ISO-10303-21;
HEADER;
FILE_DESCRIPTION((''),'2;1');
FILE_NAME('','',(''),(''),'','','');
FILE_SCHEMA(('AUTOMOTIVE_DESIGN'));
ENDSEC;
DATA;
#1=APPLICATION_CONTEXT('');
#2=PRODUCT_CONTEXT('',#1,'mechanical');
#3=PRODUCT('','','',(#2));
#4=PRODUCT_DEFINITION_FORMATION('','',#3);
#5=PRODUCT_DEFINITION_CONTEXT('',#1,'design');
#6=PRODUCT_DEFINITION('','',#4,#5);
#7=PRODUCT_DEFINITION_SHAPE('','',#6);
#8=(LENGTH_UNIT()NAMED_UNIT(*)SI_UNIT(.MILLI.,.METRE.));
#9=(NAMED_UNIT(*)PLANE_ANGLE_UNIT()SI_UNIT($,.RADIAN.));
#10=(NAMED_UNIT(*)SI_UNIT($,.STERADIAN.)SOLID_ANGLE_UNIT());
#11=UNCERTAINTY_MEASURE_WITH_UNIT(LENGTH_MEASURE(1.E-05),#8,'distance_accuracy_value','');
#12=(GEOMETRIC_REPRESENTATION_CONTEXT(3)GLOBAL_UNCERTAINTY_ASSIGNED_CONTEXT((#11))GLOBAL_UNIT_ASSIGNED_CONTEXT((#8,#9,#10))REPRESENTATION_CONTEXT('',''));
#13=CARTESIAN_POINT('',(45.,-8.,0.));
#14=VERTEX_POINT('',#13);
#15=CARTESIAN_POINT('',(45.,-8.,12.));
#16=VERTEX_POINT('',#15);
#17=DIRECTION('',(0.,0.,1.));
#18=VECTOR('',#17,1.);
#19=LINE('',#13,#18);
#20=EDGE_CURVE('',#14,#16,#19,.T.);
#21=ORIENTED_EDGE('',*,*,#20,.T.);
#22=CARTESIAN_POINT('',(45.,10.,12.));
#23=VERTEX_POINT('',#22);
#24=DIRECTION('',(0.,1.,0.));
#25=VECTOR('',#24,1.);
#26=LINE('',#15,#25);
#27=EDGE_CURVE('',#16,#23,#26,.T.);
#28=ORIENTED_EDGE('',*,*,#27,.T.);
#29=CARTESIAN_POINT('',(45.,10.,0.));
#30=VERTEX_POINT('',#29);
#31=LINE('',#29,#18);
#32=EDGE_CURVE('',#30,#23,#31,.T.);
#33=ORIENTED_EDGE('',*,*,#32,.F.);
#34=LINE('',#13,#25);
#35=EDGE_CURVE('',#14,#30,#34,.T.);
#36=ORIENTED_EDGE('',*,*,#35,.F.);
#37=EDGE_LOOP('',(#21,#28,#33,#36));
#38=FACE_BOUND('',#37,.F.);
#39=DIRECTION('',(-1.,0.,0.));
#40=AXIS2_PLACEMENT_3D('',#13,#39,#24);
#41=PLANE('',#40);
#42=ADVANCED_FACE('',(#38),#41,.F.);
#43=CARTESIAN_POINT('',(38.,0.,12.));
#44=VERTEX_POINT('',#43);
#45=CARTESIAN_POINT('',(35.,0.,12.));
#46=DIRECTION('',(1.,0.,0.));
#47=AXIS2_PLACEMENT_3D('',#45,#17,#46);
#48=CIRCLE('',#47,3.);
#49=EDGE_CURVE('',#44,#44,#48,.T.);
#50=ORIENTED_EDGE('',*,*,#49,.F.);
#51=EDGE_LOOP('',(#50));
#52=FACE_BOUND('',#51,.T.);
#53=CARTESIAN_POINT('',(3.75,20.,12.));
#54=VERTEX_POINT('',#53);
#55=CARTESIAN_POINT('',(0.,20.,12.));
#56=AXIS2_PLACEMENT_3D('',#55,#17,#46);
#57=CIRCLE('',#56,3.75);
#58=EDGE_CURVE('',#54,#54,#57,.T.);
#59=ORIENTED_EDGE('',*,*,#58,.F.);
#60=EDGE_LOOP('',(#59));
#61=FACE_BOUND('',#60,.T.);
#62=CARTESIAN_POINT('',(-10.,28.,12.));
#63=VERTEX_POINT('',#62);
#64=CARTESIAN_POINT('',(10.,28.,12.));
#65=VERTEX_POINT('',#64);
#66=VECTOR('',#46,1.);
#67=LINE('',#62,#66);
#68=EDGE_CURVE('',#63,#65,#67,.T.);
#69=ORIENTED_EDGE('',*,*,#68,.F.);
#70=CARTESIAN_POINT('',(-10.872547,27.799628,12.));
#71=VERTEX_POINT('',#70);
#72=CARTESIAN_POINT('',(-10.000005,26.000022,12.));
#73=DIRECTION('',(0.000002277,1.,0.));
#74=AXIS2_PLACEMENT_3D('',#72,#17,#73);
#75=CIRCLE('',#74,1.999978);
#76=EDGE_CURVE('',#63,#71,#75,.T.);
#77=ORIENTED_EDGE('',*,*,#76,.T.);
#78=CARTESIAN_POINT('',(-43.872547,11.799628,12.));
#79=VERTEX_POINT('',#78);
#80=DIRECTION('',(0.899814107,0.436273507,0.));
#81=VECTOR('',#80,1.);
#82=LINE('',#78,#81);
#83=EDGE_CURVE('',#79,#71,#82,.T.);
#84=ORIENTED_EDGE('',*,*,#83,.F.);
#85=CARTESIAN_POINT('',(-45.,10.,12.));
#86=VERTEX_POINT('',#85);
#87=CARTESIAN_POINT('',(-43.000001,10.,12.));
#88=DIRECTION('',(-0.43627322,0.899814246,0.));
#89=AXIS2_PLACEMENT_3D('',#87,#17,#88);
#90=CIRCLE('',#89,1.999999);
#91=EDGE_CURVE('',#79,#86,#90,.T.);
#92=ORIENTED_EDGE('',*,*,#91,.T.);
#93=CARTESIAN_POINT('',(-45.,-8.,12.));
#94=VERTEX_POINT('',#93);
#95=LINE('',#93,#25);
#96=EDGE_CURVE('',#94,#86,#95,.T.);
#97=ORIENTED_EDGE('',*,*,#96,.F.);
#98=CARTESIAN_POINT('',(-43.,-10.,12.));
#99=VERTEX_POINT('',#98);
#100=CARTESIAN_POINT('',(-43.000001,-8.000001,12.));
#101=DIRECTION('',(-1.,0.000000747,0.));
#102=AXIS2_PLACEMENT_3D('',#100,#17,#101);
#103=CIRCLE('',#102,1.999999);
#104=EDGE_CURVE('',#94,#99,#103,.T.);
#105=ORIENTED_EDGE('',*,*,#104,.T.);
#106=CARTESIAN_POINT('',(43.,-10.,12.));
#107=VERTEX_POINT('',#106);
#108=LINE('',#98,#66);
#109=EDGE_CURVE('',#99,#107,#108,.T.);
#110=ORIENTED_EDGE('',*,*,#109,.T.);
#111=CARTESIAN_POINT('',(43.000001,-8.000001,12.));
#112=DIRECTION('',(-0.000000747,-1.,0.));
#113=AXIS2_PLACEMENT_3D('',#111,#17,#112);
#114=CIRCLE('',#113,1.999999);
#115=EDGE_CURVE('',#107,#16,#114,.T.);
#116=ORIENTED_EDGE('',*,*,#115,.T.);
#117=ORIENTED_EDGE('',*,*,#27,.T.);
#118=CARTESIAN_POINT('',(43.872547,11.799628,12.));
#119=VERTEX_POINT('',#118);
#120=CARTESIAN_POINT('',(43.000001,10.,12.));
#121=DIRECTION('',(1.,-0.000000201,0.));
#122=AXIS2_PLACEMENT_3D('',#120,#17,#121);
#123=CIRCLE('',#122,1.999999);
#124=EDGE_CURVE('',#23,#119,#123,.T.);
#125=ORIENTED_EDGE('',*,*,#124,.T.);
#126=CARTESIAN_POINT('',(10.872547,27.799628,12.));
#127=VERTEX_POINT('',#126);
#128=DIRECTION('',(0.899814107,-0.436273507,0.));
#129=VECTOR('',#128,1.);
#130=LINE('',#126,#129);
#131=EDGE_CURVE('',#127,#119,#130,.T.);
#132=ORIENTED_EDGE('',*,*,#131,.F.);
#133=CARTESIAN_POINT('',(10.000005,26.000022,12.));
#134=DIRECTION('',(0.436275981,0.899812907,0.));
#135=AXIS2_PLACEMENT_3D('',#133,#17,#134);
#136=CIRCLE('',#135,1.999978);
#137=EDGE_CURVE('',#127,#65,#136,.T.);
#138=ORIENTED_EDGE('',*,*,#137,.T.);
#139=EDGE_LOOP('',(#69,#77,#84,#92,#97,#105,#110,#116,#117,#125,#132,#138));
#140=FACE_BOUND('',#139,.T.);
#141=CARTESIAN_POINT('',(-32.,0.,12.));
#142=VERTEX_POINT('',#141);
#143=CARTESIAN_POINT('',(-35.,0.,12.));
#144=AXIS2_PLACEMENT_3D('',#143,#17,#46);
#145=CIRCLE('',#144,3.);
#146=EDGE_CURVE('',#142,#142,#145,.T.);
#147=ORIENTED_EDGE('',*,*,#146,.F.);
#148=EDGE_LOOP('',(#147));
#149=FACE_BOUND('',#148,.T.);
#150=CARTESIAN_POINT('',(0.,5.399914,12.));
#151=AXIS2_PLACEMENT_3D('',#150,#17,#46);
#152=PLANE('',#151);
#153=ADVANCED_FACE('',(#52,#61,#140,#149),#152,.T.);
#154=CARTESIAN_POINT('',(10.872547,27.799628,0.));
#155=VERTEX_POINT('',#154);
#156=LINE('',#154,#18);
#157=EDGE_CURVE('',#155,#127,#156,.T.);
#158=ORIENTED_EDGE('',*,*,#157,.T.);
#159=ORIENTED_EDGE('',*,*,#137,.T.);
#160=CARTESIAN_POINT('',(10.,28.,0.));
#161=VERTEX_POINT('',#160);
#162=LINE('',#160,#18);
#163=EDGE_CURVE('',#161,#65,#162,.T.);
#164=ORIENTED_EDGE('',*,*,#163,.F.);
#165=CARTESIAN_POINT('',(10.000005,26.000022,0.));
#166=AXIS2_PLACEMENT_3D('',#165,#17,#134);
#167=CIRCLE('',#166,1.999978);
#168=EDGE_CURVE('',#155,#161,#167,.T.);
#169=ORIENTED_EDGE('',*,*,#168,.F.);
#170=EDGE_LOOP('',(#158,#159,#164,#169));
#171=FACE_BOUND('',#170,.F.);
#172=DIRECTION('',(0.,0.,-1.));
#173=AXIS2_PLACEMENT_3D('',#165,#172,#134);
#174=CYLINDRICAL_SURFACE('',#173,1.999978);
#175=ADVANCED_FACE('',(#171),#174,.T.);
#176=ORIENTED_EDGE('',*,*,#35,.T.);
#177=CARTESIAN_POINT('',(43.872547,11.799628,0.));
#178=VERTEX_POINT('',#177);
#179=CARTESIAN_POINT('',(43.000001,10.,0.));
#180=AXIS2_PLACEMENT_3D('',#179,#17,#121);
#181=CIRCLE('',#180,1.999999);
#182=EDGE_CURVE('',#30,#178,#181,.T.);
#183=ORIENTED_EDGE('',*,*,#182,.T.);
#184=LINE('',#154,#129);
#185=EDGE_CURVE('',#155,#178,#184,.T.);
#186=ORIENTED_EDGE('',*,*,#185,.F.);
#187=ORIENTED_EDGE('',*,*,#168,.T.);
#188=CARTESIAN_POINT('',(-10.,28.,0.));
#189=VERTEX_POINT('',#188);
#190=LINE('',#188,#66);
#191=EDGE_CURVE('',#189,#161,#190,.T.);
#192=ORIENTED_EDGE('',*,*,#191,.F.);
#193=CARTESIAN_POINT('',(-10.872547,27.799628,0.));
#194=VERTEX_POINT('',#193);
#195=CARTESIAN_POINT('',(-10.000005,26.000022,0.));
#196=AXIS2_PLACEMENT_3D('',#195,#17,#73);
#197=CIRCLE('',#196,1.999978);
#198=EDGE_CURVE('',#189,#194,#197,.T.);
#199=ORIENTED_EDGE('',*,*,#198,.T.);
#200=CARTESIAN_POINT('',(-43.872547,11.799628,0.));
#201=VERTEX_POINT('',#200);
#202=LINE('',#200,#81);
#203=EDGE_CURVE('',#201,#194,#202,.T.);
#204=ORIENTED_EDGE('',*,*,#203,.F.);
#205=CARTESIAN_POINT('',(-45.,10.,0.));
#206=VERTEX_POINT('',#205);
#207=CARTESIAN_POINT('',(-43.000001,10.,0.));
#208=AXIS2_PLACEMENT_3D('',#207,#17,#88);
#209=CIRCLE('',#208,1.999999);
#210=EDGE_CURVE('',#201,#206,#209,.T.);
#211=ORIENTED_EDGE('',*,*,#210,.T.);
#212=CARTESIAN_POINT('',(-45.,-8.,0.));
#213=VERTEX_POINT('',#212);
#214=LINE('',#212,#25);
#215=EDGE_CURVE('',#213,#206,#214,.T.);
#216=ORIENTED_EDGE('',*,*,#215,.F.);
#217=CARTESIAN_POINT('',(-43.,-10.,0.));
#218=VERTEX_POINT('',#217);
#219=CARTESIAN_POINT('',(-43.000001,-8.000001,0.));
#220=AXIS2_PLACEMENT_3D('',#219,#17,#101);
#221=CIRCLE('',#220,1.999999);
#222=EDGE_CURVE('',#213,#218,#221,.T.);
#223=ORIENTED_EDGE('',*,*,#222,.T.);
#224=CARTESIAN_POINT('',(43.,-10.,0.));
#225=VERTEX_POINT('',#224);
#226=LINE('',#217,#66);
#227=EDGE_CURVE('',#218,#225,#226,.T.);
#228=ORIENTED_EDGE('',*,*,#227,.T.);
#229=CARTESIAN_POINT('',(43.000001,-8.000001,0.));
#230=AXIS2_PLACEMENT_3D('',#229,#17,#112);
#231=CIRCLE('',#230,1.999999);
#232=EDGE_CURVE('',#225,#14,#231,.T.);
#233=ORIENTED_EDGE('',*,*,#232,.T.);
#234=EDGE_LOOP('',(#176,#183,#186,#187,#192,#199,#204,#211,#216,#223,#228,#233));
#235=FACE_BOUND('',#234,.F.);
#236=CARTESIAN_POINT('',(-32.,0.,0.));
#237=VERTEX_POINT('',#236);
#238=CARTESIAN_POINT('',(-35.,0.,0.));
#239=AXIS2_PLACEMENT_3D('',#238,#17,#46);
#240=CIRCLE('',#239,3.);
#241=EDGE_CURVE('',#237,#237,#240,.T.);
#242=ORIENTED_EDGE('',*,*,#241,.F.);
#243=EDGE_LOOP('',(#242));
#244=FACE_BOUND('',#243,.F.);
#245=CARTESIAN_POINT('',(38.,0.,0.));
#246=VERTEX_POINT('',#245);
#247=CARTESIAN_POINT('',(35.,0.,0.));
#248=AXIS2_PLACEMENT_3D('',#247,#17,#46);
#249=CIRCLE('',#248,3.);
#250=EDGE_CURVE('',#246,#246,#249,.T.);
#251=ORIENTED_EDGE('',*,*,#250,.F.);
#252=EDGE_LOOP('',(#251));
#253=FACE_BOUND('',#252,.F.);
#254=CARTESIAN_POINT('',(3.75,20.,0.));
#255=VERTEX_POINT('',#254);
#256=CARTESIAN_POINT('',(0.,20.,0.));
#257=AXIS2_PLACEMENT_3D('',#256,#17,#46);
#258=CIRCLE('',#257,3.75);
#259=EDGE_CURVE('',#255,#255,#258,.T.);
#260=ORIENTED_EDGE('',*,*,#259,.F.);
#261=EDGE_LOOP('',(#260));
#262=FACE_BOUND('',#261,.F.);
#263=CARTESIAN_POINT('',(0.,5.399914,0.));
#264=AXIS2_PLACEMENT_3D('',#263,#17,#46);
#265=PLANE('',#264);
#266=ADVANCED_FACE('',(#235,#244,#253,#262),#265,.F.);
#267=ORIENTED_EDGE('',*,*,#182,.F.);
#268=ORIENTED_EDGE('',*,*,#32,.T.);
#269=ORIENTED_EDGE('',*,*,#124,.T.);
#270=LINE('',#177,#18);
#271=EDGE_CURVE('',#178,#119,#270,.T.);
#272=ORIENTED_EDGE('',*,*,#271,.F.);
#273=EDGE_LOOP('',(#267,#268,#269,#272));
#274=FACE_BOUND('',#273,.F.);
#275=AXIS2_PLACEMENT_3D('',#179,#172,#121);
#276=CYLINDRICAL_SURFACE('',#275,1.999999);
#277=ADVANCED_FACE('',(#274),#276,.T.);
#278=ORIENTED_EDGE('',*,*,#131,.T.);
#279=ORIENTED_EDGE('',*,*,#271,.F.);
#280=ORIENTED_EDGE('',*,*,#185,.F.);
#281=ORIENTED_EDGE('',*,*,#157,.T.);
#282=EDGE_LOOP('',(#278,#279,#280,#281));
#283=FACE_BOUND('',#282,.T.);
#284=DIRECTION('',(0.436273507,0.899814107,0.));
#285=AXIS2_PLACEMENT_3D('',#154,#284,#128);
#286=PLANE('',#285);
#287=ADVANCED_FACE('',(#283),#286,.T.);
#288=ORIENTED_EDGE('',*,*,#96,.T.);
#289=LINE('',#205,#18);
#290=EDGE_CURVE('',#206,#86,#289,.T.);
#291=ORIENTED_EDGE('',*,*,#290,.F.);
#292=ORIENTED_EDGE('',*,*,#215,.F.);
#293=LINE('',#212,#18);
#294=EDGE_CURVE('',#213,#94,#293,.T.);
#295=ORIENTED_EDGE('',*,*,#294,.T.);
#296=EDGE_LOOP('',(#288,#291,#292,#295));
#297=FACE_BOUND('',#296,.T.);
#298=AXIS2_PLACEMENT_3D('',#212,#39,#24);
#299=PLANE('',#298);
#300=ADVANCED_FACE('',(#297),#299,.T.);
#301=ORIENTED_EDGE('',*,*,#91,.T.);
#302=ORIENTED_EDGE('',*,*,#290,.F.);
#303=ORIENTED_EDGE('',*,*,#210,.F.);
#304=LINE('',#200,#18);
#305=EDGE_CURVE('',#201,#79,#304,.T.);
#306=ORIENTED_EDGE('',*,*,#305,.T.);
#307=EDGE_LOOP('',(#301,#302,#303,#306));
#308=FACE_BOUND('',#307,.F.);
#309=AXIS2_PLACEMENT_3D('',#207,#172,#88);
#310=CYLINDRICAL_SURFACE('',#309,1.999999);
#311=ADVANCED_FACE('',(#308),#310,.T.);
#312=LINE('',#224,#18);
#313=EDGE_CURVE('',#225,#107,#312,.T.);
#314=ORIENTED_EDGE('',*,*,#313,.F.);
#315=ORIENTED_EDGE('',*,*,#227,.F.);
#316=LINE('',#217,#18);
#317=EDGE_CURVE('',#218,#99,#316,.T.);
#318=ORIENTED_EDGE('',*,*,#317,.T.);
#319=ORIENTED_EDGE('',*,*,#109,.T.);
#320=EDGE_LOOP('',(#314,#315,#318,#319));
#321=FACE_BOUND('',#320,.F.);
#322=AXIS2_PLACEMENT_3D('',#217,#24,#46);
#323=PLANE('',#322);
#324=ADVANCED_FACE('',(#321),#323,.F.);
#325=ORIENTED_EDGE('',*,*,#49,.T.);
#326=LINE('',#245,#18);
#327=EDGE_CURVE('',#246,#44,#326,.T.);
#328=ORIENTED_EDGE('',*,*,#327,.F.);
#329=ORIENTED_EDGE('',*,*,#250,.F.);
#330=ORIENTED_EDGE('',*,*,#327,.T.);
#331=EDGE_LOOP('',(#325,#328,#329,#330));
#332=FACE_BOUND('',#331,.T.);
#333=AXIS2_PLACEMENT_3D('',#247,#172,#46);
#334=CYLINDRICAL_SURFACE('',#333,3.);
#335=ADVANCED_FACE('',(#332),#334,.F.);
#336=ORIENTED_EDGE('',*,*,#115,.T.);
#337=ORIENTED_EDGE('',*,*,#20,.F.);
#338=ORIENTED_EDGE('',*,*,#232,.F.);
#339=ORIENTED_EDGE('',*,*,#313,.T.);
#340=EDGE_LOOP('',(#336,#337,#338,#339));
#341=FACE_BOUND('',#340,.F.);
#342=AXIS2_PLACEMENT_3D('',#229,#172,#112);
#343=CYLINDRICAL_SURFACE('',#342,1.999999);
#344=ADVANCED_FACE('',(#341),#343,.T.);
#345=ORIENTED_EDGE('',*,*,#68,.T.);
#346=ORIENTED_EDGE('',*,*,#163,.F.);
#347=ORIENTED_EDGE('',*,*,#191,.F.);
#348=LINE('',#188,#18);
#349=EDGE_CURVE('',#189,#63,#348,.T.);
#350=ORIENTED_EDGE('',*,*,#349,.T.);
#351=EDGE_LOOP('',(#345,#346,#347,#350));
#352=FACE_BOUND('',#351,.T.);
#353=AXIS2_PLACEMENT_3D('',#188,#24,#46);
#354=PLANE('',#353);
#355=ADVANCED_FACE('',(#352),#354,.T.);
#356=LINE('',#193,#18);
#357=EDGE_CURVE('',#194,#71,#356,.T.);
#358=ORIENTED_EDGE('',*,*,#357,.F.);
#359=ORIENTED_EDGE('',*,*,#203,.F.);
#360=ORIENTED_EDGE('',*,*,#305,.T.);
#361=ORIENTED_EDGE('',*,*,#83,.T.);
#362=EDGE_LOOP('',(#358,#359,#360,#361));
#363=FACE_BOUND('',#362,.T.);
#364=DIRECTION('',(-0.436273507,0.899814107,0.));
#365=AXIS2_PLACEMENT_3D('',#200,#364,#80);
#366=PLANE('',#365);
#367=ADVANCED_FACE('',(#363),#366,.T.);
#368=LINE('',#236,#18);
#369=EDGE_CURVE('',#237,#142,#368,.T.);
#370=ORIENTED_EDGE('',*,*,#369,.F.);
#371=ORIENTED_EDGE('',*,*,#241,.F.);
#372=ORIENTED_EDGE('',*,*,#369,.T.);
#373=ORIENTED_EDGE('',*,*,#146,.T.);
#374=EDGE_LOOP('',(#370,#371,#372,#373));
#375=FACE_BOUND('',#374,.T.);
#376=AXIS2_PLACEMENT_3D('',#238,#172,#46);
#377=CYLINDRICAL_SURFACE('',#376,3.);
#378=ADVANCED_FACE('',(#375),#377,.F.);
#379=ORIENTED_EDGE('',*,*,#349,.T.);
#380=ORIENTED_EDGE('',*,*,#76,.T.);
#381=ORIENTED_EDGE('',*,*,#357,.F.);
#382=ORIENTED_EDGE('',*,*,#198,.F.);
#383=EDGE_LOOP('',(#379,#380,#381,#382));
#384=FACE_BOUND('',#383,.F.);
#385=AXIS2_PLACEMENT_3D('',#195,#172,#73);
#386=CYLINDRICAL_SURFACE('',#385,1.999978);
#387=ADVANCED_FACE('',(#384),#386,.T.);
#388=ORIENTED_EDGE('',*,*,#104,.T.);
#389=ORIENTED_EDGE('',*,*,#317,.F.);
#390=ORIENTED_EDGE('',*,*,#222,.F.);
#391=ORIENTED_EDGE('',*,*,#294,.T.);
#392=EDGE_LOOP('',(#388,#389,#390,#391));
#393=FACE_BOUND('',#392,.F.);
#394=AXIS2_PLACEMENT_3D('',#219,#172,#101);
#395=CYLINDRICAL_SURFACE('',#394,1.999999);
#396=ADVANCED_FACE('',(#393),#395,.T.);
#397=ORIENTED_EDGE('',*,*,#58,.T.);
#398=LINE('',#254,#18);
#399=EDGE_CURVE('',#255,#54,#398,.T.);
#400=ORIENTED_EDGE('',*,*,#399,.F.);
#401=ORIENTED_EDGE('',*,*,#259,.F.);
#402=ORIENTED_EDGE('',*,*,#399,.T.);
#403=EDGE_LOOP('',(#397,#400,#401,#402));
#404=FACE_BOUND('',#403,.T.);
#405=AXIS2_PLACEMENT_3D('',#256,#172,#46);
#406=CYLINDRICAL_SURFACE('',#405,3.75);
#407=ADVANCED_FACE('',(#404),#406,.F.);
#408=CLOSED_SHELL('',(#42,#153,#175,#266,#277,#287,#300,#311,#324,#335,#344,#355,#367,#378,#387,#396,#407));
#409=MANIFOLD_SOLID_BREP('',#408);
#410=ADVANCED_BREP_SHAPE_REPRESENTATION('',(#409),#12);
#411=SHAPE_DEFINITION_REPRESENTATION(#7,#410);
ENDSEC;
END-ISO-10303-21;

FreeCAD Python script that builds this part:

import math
import FreeCAD as App
import Part
import Sketcher

V = App.Vector

doc = App.newDocument("Part")
body = doc.addObject("PartDesign::Body", "Body")

sketch1 = doc.addObject("Sketcher::SketchObject", "Sketch")
body.addObject(sketch1)
sketch1.AttachmentSupport = (doc.XY_Plane, [""])
sketch1.MapMode = "FlatFace"
sketch1.addGeometry(Part.LineSegment(V(-43, -10, 0), V(43, -10, 0)), False)
sketch1.addGeometry(Part.ArcOfCircle(Part.Circle(V(43, -8, 0), V(0, 0, 1), 2), math.radians(-90), math.radians(0)), False)
sketch1.addGeometry(Part.LineSegment(V(45, -8, 0), V(45, 10, 0)), False)
sketch1.addGeometry(Part.ArcOfCircle(Part.Circle(V(43, 10, 0), V(0, 0, 1), 2), math.radians(0), math.radians(64)), False)
sketch1.addGeometry(Part.LineSegment(V(43.9, 11.8, 0), V(10.9, 27.8, 0)), False)
sketch1.addGeometry(Part.ArcOfCircle(Part.Circle(V(10, 26, 0), V(0, 0, 1), 2), math.radians(64), math.radians(90)), False)
sketch1.addGeometry(Part.LineSegment(V(10, 28, 0), V(-10, 28, 0)), False)
sketch1.addGeometry(Part.ArcOfCircle(Part.Circle(V(-10, 26, 0), V(0, 0, 1), 2), math.radians(90), math.radians(116)), False)
sketch1.addGeometry(Part.LineSegment(V(-10.9, 27.8, 0), V(-43.9, 11.8, 0)), False)
sketch1.addGeometry(Part.ArcOfCircle(Part.Circle(V(-43, 10, 0), V(0, 0, 1), 2), math.radians(116), math.radians(180)), False)
sketch1.addGeometry(Part.LineSegment(V(-45, 10, 0), V(-45, -8, 0)), False)
sketch1.addGeometry(Part.ArcOfCircle(Part.Circle(V(-43, -8, 0), V(0, 0, 1), 2), math.radians(180), math.radians(270)), False)
sketch1.addGeometry(Part.Circle(V(-35, 0, 0), V(0, 0, 1), 3), False)
sketch1.addGeometry(Part.Circle(V(35, 0, 0), V(0, 0, 1), 3), False)
sketch1.addGeometry(Part.Circle(V(0, 20, 0), V(0, 0, 1), 3.8), False)
sketch1.addConstraint(Sketcher.Constraint("Tangent", 0, 2, 1, 1))
sketch1.addConstraint(Sketcher.Constraint("Tangent", 1, 2, 2, 1))
sketch1.addConstraint(Sketcher.Constraint("Tangent", 2, 2, 3, 1))
sketch1.addConstraint(Sketcher.Constraint("Tangent", 3, 2, 4, 1))
sketch1.addConstraint(Sketcher.Constraint("Coincident", 4, 2, 5, 1))
sketch1.addConstraint(Sketcher.Constraint("Coincident", 5, 2, 6, 1))
sketch1.addConstraint(Sketcher.Constraint("Coincident", 6, 2, 7, 1))
sketch1.addConstraint(Sketcher.Constraint("Coincident", 7, 2, 8, 1))
sketch1.addConstraint(Sketcher.Constraint("Tangent", 8, 2, 9, 1))
sketch1.addConstraint(Sketcher.Constraint("Tangent", 9, 2, 10, 1))
sketch1.addConstraint(Sketcher.Constraint("Tangent", 10, 2, 11, 1))
sketch1.addConstraint(Sketcher.Constraint("Tangent", 11, 2, 0, 1))
sketch1.addConstraint(Sketcher.Constraint("Horizontal", 0))
sketch1.addConstraint(Sketcher.Constraint("Vertical", 2))
sketch1.addConstraint(Sketcher.Constraint("Horizontal", 6))
sketch1.addConstraint(Sketcher.Constraint("Vertical", 10))
sketch1.addConstraint(Sketcher.Constraint("Equal", 1, 3))
sketch1.addConstraint(Sketcher.Constraint("Equal", 5, 7))
sketch1.addConstraint(Sketcher.Constraint("Equal", 3, 9))
sketch1.addConstraint(Sketcher.Constraint("Equal", 9, 11))
sketch1.addConstraint(Sketcher.Constraint("Equal", 12, 13))
sketch1.addConstraint(Sketcher.Constraint("Symmetric", 12, 3, 13, 3, -1, 1))
sketch1.addConstraint(Sketcher.Constraint("Symmetric", 3, 3, 9, 3, -2))
sketch1.addConstraint(Sketcher.Constraint("Symmetric", 4, 2, 7, 2, -2))
sketch1.addConstraint(Sketcher.Constraint("PointOnObject", 12, 3, -1))
sketch1.addConstraint(Sketcher.Constraint("PointOnObject", 14, 3, -2))
sketch1.addConstraint(Sketcher.Constraint("Diameter", 12, 6.0))
sketch1.addConstraint(Sketcher.Constraint("Radius", 1, 1.999999))
sketch1.addConstraint(Sketcher.Constraint("Diameter", 14, 7.5))
sketch1.addConstraint(Sketcher.Constraint("DistanceX", 0, 1, 0, 2, 86.0))
sketch1.addConstraint(Sketcher.Constraint("DistanceX", 6, 2, 6, 1, 20.0))
sketch1.addConstraint(Sketcher.Constraint("DistanceY", 2, 1, 2, 2, 18.0))
sketch1.addConstraint(Sketcher.Constraint("DistanceY", 1, 3, -1, 1, 8.000001))
sketch1.addConstraint(Sketcher.Constraint("DistanceX", 12, 3, -1, 1, 35.0))
sketch1.addConstraint(Sketcher.Constraint("DistanceY", -1, 1, 14, 3, 20.0))
sketch1.addConstraint(Sketcher.Constraint("DistanceX", -1, 1, 5, 2, 10.0))
sketch1.addConstraint(Sketcher.Constraint("DistanceY", -1, 1, 5, 2, 28.0))
sketch1.addConstraint(Sketcher.Constraint("DistanceX", 4, 2, 3, 2, 33.0))
sketch1.addConstraint(Sketcher.Constraint("DistanceY", 3, 2, 4, 2, 16.0))
sketch1.addConstraint(Sketcher.Constraint("Radius", 5, 1.999978))
pad1 = doc.addObject("PartDesign::Pad", "Pad")
body.addObject(pad1)
pad1.Profile = sketch1
pad1.Length = 12

doc.recompute()
